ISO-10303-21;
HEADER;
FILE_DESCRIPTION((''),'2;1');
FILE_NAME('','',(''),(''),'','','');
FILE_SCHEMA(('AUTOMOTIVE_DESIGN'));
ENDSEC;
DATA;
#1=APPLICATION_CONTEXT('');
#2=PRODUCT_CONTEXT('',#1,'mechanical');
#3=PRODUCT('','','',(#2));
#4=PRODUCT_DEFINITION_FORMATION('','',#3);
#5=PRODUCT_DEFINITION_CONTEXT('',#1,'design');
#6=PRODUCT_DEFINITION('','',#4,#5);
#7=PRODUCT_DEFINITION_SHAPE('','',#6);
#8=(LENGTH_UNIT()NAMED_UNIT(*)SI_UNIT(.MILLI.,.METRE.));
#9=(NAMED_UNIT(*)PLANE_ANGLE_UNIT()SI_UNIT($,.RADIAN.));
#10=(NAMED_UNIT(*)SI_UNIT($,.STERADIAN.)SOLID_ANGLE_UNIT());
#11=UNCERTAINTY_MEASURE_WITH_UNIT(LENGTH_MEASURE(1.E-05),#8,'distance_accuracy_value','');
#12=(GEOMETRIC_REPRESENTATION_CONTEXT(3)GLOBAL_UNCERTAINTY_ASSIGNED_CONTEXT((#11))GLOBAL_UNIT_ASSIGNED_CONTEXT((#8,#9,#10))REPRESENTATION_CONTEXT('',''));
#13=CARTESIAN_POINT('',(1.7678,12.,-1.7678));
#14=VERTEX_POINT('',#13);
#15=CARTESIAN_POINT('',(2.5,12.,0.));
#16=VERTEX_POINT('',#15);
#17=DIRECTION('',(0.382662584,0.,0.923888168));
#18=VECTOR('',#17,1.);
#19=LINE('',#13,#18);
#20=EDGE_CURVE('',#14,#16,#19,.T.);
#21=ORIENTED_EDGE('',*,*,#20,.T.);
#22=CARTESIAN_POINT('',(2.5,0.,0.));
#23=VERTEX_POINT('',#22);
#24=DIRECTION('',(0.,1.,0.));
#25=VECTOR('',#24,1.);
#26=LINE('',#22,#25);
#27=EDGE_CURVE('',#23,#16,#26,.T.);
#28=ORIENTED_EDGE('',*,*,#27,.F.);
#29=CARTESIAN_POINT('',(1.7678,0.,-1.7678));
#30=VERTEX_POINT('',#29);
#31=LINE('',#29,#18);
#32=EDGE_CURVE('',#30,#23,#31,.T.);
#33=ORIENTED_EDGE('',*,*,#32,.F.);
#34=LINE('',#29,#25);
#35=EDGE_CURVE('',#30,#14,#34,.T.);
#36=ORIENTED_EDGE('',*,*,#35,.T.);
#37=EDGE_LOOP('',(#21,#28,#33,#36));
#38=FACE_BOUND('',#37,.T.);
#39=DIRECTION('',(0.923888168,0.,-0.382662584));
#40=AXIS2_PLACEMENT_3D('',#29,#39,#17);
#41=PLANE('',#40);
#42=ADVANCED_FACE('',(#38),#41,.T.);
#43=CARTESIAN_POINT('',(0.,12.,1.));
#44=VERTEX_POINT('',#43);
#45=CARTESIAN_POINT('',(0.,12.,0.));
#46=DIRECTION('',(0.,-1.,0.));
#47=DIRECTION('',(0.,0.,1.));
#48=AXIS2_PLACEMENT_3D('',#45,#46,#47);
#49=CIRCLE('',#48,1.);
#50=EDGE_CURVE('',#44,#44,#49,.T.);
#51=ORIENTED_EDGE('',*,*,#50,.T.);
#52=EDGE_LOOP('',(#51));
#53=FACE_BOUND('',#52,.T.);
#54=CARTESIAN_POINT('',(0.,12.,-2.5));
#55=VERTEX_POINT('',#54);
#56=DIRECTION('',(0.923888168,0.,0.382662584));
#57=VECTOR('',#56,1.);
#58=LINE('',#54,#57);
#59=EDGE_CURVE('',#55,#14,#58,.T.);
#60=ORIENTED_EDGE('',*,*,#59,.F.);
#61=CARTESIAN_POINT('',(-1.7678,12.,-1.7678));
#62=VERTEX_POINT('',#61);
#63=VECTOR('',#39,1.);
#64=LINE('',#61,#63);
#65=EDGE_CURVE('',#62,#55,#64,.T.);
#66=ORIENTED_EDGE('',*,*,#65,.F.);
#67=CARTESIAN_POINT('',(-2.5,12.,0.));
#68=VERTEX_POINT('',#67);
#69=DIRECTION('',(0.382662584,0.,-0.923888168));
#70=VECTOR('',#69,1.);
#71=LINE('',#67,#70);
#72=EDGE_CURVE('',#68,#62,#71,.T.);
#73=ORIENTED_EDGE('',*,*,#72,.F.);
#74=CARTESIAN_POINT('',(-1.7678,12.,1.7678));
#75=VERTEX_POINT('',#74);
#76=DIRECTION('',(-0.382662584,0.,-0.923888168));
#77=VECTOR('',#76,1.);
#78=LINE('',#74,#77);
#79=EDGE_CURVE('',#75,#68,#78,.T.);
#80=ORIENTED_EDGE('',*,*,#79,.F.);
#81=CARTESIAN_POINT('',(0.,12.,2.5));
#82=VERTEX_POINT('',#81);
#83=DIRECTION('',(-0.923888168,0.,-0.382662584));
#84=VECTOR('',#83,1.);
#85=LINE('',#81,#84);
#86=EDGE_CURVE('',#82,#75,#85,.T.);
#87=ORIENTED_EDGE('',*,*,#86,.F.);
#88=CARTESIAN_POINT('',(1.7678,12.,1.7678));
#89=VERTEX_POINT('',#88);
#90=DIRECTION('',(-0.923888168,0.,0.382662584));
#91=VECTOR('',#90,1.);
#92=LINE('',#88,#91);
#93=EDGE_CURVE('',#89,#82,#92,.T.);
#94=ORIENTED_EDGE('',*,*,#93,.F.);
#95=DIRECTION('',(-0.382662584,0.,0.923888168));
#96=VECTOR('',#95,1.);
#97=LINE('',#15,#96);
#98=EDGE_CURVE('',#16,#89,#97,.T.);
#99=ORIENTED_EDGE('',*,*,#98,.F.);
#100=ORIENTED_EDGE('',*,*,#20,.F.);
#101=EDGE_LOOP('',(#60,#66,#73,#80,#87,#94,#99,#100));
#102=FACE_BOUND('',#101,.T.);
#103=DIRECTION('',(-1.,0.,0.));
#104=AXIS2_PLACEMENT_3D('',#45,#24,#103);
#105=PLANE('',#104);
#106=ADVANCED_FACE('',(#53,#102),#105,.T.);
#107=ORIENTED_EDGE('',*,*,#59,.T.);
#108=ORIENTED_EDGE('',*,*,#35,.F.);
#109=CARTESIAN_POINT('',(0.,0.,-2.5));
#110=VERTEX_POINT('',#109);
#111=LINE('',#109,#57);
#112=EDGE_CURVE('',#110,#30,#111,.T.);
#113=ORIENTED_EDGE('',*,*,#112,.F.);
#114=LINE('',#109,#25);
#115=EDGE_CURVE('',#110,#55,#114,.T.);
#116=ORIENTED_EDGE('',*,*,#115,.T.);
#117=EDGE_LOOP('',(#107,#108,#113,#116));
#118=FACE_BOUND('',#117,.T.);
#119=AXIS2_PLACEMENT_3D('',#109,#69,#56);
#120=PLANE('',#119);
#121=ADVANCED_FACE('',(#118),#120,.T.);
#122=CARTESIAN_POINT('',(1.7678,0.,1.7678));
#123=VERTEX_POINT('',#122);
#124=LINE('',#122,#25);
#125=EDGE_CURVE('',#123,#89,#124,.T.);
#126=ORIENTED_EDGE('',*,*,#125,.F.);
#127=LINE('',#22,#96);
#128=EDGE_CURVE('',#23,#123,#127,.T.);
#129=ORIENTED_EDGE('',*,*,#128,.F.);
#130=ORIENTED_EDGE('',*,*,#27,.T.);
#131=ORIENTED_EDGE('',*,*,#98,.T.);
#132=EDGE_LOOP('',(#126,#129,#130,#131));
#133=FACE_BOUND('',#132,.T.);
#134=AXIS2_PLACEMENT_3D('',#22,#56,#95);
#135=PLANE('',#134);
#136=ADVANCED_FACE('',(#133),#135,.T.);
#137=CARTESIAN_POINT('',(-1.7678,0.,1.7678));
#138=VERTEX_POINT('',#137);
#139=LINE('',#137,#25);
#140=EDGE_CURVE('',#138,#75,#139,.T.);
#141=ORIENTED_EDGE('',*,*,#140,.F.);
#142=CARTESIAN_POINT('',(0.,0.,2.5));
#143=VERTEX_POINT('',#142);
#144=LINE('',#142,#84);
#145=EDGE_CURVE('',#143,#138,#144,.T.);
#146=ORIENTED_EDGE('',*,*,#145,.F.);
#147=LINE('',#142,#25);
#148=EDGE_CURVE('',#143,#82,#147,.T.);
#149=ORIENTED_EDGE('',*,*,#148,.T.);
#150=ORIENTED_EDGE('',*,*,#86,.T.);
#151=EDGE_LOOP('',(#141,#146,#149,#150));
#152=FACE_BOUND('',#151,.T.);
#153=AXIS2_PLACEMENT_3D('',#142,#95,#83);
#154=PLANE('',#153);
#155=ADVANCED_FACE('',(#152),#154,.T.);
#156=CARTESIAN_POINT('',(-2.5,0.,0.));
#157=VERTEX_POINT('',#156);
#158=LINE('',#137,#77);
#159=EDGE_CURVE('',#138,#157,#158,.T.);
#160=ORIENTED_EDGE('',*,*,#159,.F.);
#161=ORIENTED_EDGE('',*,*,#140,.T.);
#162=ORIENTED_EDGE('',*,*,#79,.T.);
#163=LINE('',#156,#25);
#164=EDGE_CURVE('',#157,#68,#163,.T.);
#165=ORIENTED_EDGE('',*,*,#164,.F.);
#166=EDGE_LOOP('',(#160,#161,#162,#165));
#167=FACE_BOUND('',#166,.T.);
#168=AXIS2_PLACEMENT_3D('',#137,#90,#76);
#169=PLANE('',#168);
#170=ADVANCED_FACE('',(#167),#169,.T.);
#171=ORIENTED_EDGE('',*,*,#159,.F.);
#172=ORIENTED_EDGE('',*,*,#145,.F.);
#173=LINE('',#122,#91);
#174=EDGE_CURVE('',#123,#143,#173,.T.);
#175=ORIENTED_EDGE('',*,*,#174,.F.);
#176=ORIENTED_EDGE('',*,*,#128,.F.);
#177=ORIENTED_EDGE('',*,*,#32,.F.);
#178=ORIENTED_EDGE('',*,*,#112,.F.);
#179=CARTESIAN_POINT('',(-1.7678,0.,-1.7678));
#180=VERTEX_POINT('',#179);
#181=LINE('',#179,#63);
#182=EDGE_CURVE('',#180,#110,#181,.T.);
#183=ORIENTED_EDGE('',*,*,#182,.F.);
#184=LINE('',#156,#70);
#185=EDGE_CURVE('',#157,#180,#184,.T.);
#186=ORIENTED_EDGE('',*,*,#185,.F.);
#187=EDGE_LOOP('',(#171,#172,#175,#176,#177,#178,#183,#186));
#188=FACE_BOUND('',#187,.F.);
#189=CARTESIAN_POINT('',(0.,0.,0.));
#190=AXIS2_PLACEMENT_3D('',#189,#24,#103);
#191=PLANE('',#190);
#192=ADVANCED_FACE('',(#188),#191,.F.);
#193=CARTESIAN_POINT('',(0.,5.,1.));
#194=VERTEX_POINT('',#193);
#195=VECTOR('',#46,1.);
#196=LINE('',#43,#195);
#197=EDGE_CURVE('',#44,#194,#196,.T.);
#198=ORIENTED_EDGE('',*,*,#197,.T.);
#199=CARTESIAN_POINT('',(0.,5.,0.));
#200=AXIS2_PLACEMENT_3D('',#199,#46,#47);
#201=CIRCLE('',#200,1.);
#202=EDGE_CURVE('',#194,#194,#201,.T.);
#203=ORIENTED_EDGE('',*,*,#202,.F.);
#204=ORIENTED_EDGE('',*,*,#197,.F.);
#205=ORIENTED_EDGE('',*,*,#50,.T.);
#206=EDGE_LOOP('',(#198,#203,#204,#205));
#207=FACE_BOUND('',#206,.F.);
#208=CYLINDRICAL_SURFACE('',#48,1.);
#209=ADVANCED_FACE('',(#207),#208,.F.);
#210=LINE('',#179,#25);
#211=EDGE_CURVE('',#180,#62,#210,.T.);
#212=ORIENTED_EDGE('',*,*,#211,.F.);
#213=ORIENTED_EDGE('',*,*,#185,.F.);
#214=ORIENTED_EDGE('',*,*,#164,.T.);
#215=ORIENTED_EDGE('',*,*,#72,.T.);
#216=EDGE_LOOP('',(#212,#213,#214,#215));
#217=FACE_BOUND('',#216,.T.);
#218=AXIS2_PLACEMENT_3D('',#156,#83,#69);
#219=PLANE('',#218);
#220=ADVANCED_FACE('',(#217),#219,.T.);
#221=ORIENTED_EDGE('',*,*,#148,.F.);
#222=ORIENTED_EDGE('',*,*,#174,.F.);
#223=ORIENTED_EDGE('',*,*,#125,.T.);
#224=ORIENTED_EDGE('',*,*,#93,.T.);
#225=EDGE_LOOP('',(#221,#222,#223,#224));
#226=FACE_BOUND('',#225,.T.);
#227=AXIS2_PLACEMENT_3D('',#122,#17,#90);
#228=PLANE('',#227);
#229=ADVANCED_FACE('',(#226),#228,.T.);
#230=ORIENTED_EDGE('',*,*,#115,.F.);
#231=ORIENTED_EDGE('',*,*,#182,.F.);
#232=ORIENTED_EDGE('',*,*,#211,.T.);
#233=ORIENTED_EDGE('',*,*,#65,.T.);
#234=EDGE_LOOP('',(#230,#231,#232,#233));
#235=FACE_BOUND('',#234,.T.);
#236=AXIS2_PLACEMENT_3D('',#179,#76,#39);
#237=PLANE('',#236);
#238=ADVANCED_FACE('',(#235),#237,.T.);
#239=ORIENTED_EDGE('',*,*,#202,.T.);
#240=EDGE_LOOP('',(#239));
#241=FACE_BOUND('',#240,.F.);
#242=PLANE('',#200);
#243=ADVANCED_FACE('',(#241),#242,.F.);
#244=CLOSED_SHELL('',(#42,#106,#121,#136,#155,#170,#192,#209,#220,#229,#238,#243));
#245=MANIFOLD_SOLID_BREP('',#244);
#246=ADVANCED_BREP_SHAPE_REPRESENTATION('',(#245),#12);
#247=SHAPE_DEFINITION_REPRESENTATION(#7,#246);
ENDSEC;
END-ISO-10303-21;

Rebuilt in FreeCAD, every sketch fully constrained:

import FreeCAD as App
import Part
import Sketcher

V = App.Vector
Q = App.Units.Quantity


def add_polygon(sketch, points):
    """Adds a closed chain of lines whose ends are joined by coincident constraints."""
    first, n = sketch.GeometryCount, len(points)
    for a, b in zip(points, points[1:] + points[:1]):
        sketch.addGeometry(Part.LineSegment(App.Vector(*a, 0), App.Vector(*b, 0)), False)
    for i in range(n):
        sketch.addConstraint(Sketcher.Constraint("Coincident", first + i, 2, first + (i + 1) % n, 1))

doc = App.newDocument("Part")
body = doc.addObject("PartDesign::Body", "Body")

# Sketch on XZ plane
sketch1 = doc.addObject("Sketcher::SketchObject", "Sketch")
body.addObject(sketch1)
sketch1.AttachmentSupport = (doc.XZ_Plane, [""])
sketch1.MapMode = "FlatFace"
add_polygon(sketch1, [(1.8, 1.8), (2.5, 0), (1.8, -1.8), (0, -2.5), (-1.8, -1.8), (-2.5, 0), (-1.8, 1.8), (0, 2.5)])  # lines 0-7
sketch1.addConstraint([
    Sketcher.Constraint("Symmetric", 0, 2, 4, 2, -1, 1),
    Sketcher.Constraint("Symmetric", 1, 2, 5, 2, -1, 1),
    Sketcher.Constraint("Symmetric", 2, 2, 6, 2, -1, 1),
    Sketcher.Constraint("Symmetric", 3, 2, 7, 2, -1, 1),
    Sketcher.Constraint("Symmetric", 1, 2, 3, 2, -2),
    Sketcher.Constraint("PointOnObject", 0, 2, -1),
    Sketcher.Constraint("PointOnObject", 2, 2, -2),
    Sketcher.Constraint("Perpendicular", 0, 2),
    Sketcher.Constraint("Equal", 1, 2),
    Sketcher.Constraint("DistanceX", 4, 2, 0, 2, Q("5 mm")),
    Sketcher.Constraint("Distance", 0, Q("1.9134 mm")),
])
pad1 = doc.addObject("PartDesign::Pad", "Pad")
body.addObject(pad1)
pad1.Profile = sketch1
pad1.Length = 12
pad1.Reversed = True

# Sketch on XZ plane
sketch2 = doc.addObject("Sketcher::SketchObject", "Sketch001")
body.addObject(sketch2)
sketch2.AttachmentSupport = (doc.XZ_Plane, [""])
sketch2.MapMode = "FlatFace"
sketch2.AttachmentOffset = App.Placement(V(0, 0, -12), App.Rotation())
sketch2.addGeometry(Part.Circle(V(0, 0, 0), V(0, 0, 1), 1), False)
sketch2.addConstraint([
    Sketcher.Constraint("Coincident", 0, 3, -1, 1),
    Sketcher.Constraint("Diameter", 0, Q("2 mm")),
])
doc.recompute()
hole = doc.addObject("PartDesign::Hole", "Hole")
body.addObject(hole)
hole.Profile = sketch2
hole.ThreadType = "None"
hole.Diameter = 2
hole.DepthType = "Dimension"
hole.Depth = 7
hole.DrillPoint = "Flat"
hole.Reversed = True

doc.recompute()
